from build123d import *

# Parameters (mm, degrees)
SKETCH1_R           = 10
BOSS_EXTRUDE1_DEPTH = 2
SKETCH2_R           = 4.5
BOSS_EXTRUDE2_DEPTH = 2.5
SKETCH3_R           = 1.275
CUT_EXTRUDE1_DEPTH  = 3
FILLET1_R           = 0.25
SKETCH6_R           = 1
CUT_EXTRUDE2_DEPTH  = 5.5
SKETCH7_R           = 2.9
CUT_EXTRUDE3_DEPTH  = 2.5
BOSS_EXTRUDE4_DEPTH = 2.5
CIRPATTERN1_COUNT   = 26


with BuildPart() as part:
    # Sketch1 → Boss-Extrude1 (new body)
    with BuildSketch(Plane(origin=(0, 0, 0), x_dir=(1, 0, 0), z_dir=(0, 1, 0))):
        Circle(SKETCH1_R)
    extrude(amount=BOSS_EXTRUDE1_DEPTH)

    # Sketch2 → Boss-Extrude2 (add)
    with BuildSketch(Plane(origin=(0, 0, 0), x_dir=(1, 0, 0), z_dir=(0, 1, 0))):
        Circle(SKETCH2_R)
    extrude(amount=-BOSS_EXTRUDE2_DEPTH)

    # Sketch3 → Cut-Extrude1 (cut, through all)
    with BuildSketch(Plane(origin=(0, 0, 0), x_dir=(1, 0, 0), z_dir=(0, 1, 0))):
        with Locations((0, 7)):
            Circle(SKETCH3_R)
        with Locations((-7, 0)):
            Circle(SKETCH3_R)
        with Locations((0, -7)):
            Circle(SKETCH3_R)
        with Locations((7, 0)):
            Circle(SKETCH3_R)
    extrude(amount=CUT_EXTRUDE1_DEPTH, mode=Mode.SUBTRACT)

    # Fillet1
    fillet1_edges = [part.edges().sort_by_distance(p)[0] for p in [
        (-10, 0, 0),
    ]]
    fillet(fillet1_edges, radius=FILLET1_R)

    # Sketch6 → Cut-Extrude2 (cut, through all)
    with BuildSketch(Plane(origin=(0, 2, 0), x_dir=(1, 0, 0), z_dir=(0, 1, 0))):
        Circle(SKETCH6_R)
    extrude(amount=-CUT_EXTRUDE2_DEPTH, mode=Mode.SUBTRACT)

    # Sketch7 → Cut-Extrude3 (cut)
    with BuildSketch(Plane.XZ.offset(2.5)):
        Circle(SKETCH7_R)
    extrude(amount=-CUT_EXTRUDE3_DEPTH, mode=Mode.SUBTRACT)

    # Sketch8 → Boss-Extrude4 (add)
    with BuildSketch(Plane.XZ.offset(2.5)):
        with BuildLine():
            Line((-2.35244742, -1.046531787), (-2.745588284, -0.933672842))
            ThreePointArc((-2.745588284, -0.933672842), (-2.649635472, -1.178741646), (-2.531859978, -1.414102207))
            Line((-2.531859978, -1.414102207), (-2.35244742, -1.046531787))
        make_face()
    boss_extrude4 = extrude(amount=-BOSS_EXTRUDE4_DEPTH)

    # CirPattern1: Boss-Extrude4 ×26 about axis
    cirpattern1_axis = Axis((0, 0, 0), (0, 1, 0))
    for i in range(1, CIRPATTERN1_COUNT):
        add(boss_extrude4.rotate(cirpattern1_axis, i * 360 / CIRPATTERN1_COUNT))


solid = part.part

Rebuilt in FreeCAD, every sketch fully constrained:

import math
import FreeCAD as App
import Part
import Sketcher
from FreeCAD import Vector


def edges_at(feature, points):
    """Names of the edges that pass closest to the given points."""
    edges = feature.Shape.Edges
    near = lambda p: min(range(len(edges)), key=lambda i: edges[i].distToShape(Part.Vertex(*p))[0])
    return sorted({f"Edge{near(p) + 1}" for p in points})

doc = App.newDocument("Part")
params = doc.addObject("Spreadsheet::Sheet", "Params")
for row, (alias, value) in enumerate([
    ("sketch1_diameter", "20 mm"),
    ("pad1_length", "2 mm"),
    ("sketch2_diameter", "9 mm"),
    ("pad2_length", "2.5 mm"),
    ("sketch3_diameter", "2.55 mm"),
    ("fillet_radius", "0.25 mm"),
    ("sketch4_diameter", "2 mm"),
    ("sketch5_diameter", "5.8 mm"),
    ("pocket3_length", "2.5 mm"),
    ("sketch6_radius", "2.9 mm"),
    ("pad3_length", "2.5 mm"),
], start=1):
    params.set(f"A{row}", alias)
    params.set(f"B{row}", "=" + value)
    params.setAlias(f"B{row}", alias)

body = doc.addObject("PartDesign::Body", "Body")

# Sketch on XZ plane
sketch1 = body.newObject("Sketcher::SketchObject", "Sketch")
sketch1.AttachmentSupport = (doc.getObject("XZ_Plane"), [""])
sketch1.MapMode = "FlatFace"
sketch1.addGeometry(Part.Circle(Vector(0, 0, 0), Vector(0, 0, 1), 10), False)
sketch1.addConstraint([
    Sketcher.Constraint("Coincident", 0, 3, -1, 1),
    Sketcher.Constraint("Diameter", 0, 20.0),
])
sketch1.setExpression("Constraints[1]", "Params.sketch1_diameter")
pad1 = body.newObject("PartDesign::Pad", "Pad")
pad1.Profile = sketch1
pad1.setExpression("Length", "Params.pad1_length")
pad1.Reversed = True

# Sketch on XZ plane
sketch2 = body.newObject("Sketcher::SketchObject", "Sketch001")
sketch2.AttachmentSupport = (doc.getObject("XZ_Plane"), [""])
sketch2.MapMode = "FlatFace"
sketch2.addGeometry(Part.Circle(Vector(0, 0, 0), Vector(0, 0, 1), 4.5), False)
sketch2.addConstraint([
    Sketcher.Constraint("Coincident", 0, 3, -1, 1),
    Sketcher.Constraint("Diameter", 0, 9.0),
])
sketch2.setExpression("Constraints[1]", "Params.sketch2_diameter")
pad2 = body.newObject("PartDesign::Pad", "Pad001")
pad2.Profile = sketch2
pad2.setExpression("Length", "Params.pad2_length")

# Sketch on XZ plane
sketch3 = body.newObject("Sketcher::SketchObject", "Sketch002")
sketch3.AttachmentSupport = (doc.getObject("XZ_Plane"), [""])
sketch3.MapMode = "FlatFace"
sketch3.addGeometry([
    Part.Circle(Vector(0, -7, 0), Vector(0, 0, 1), 1.3),
    Part.Circle(Vector(-7, 0, 0), Vector(0, 0, 1), 1.3),
    Part.Circle(Vector(0, 7, 0), Vector(0, 0, 1), 1.3),
    Part.Circle(Vector(7, 0, 0), Vector(0, 0, 1), 1.3),
], False)
sketch3.addConstraint([
    Sketcher.Constraint("Equal", 0, 1),
    Sketcher.Constraint("Equal", 1, 2),
    Sketcher.Constraint("Equal", 2, 3),
    Sketcher.Constraint("Symmetric", 0, 3, 2, 3, -1, 1),
    Sketcher.Constraint("Symmetric", 1, 3, 3, 3, -1, 1),
    Sketcher.Constraint("PointOnObject", 0, 3, -2),
    Sketcher.Constraint("PointOnObject", 1, 3, -1),
    Sketcher.Constraint("Diameter", 0, 2.55),
    Sketcher.Constraint("DistanceY", 0, 3, -1, 1, 7.0),
    Sketcher.Constraint("DistanceX", 1, 3, -1, 1, 7.0),
])
sketch3.setExpression("Constraints[7]", "Params.sketch3_diameter")
pocket1 = body.newObject("PartDesign::Pocket", "Pocket")
pocket1.Profile = sketch3
pocket1.Type = "ThroughAll"
doc.recompute()

fillet = body.newObject("PartDesign::Fillet", "Fillet")
fillet.Base = (pocket1, edges_at(pocket1, [(-10, 0, 0)]))
fillet.setExpression("Radius", "Params.fillet_radius")

# Sketch on XZ plane
sketch4 = body.newObject("Sketcher::SketchObject", "Sketch003")
sketch4.AttachmentSupport = (doc.getObject("XZ_Plane"), [""])
sketch4.MapMode = "FlatFace"
sketch4.AttachmentOffset = App.Placement(Vector(0, 0, -2), App.Rotation())
sketch4.addGeometry(Part.Circle(Vector(0, 0, 0), Vector(0, 0, 1), 1), False)
sketch4.addConstraint([
    Sketcher.Constraint("Coincident", 0, 3, -1, 1),
    Sketcher.Constraint("Diameter", 0, 2.0),
])
sketch4.setExpression("Constraints[1]", "Params.sketch4_diameter")
pocket2 = body.newObject("PartDesign::Pocket", "Pocket001")
pocket2.Profile = sketch4
pocket2.Type = "ThroughAll"
pocket2.Reversed = True

# Sketch on XZ plane
sketch5 = body.newObject("Sketcher::SketchObject", "Sketch004")
sketch5.AttachmentSupport = (doc.getObject("XZ_Plane"), [""])
sketch5.MapMode = "FlatFace"
sketch5.AttachmentOffset = App.Placement(Vector(0, 0, 2.5), App.Rotation())
sketch5.addGeometry(Part.Circle(Vector(0, 0, 0), Vector(0, 0, 1), 2.9), False)
sketch5.addConstraint([
    Sketcher.Constraint("Coincident", 0, 3, -1, 1),
    Sketcher.Constraint("Diameter", 0, 5.8),
])
sketch5.setExpression("Constraints[1]", "Params.sketch5_diameter")
pocket3 = body.newObject("PartDesign::Pocket", "Pocket002")
pocket3.Profile = sketch5
pocket3.setExpression("Length", "Params.pocket3_length")

# Sketch on XZ plane
sketch6 = body.newObject("Sketcher::SketchObject", "Sketch005")
sketch6.AttachmentSupport = (doc.getObject("XZ_Plane"), [""])
sketch6.MapMode = "FlatFace"
sketch6.AttachmentOffset = App.Placement(Vector(0, 0, 2.5), App.Rotation())
sketch6.addGeometry([
    Part.LineSegment(Vector(-2.35, -1.05, 0), Vector(-2.75, -0.93, 0)),
    Part.ArcOfCircle(Part.Circle(Vector(0, 0, 0), Vector(0, 0, 1), 2.9), math.radians(-161.22), math.radians(-150.82)),
    Part.LineSegment(Vector(-2.53, -1.41, 0), Vector(-2.35, -1.05, 0)),
], False)
sketch6.addConstraint([
    Sketcher.Constraint("Coincident", 0, 2, 1, 1),
    Sketcher.Constraint("Coincident", 1, 2, 2, 1),
    Sketcher.Constraint("Coincident", 2, 2, 0, 1),
    Sketcher.Constraint("Coincident", 1, 3, -1, 1),
    Sketcher.Constraint("Equal", 0, 2),
    Sketcher.Constraint("Radius", 1, 2.9),
    Sketcher.Constraint("Distance", 0, 0.409019),
    Sketcher.Constraint("DistanceX", 0, 2, -1, 1, 2.745588),
    Sketcher.Constraint("DistanceX", 1, 2, -1, 1, 2.53186),
])
sketch6.setExpression("Constraints[5]", "Params.sketch6_radius")
pad3 = body.newObject("PartDesign::Pad", "Pad002")
pad3.Profile = sketch6
pad3.setExpression("Length", "Params.pad3_length")
pad3.Reversed = True
doc.recompute()

polarpattern = body.newObject("PartDesign::PolarPattern", "PolarPattern")
polarpattern.Originals = [pad3]
polarpattern.Axis = (doc.getObject("Y_Axis"), [""])
polarpattern.Angle = 360
polarpattern.Occurrences = 26
body.Tip = polarpattern

doc.recompute()
